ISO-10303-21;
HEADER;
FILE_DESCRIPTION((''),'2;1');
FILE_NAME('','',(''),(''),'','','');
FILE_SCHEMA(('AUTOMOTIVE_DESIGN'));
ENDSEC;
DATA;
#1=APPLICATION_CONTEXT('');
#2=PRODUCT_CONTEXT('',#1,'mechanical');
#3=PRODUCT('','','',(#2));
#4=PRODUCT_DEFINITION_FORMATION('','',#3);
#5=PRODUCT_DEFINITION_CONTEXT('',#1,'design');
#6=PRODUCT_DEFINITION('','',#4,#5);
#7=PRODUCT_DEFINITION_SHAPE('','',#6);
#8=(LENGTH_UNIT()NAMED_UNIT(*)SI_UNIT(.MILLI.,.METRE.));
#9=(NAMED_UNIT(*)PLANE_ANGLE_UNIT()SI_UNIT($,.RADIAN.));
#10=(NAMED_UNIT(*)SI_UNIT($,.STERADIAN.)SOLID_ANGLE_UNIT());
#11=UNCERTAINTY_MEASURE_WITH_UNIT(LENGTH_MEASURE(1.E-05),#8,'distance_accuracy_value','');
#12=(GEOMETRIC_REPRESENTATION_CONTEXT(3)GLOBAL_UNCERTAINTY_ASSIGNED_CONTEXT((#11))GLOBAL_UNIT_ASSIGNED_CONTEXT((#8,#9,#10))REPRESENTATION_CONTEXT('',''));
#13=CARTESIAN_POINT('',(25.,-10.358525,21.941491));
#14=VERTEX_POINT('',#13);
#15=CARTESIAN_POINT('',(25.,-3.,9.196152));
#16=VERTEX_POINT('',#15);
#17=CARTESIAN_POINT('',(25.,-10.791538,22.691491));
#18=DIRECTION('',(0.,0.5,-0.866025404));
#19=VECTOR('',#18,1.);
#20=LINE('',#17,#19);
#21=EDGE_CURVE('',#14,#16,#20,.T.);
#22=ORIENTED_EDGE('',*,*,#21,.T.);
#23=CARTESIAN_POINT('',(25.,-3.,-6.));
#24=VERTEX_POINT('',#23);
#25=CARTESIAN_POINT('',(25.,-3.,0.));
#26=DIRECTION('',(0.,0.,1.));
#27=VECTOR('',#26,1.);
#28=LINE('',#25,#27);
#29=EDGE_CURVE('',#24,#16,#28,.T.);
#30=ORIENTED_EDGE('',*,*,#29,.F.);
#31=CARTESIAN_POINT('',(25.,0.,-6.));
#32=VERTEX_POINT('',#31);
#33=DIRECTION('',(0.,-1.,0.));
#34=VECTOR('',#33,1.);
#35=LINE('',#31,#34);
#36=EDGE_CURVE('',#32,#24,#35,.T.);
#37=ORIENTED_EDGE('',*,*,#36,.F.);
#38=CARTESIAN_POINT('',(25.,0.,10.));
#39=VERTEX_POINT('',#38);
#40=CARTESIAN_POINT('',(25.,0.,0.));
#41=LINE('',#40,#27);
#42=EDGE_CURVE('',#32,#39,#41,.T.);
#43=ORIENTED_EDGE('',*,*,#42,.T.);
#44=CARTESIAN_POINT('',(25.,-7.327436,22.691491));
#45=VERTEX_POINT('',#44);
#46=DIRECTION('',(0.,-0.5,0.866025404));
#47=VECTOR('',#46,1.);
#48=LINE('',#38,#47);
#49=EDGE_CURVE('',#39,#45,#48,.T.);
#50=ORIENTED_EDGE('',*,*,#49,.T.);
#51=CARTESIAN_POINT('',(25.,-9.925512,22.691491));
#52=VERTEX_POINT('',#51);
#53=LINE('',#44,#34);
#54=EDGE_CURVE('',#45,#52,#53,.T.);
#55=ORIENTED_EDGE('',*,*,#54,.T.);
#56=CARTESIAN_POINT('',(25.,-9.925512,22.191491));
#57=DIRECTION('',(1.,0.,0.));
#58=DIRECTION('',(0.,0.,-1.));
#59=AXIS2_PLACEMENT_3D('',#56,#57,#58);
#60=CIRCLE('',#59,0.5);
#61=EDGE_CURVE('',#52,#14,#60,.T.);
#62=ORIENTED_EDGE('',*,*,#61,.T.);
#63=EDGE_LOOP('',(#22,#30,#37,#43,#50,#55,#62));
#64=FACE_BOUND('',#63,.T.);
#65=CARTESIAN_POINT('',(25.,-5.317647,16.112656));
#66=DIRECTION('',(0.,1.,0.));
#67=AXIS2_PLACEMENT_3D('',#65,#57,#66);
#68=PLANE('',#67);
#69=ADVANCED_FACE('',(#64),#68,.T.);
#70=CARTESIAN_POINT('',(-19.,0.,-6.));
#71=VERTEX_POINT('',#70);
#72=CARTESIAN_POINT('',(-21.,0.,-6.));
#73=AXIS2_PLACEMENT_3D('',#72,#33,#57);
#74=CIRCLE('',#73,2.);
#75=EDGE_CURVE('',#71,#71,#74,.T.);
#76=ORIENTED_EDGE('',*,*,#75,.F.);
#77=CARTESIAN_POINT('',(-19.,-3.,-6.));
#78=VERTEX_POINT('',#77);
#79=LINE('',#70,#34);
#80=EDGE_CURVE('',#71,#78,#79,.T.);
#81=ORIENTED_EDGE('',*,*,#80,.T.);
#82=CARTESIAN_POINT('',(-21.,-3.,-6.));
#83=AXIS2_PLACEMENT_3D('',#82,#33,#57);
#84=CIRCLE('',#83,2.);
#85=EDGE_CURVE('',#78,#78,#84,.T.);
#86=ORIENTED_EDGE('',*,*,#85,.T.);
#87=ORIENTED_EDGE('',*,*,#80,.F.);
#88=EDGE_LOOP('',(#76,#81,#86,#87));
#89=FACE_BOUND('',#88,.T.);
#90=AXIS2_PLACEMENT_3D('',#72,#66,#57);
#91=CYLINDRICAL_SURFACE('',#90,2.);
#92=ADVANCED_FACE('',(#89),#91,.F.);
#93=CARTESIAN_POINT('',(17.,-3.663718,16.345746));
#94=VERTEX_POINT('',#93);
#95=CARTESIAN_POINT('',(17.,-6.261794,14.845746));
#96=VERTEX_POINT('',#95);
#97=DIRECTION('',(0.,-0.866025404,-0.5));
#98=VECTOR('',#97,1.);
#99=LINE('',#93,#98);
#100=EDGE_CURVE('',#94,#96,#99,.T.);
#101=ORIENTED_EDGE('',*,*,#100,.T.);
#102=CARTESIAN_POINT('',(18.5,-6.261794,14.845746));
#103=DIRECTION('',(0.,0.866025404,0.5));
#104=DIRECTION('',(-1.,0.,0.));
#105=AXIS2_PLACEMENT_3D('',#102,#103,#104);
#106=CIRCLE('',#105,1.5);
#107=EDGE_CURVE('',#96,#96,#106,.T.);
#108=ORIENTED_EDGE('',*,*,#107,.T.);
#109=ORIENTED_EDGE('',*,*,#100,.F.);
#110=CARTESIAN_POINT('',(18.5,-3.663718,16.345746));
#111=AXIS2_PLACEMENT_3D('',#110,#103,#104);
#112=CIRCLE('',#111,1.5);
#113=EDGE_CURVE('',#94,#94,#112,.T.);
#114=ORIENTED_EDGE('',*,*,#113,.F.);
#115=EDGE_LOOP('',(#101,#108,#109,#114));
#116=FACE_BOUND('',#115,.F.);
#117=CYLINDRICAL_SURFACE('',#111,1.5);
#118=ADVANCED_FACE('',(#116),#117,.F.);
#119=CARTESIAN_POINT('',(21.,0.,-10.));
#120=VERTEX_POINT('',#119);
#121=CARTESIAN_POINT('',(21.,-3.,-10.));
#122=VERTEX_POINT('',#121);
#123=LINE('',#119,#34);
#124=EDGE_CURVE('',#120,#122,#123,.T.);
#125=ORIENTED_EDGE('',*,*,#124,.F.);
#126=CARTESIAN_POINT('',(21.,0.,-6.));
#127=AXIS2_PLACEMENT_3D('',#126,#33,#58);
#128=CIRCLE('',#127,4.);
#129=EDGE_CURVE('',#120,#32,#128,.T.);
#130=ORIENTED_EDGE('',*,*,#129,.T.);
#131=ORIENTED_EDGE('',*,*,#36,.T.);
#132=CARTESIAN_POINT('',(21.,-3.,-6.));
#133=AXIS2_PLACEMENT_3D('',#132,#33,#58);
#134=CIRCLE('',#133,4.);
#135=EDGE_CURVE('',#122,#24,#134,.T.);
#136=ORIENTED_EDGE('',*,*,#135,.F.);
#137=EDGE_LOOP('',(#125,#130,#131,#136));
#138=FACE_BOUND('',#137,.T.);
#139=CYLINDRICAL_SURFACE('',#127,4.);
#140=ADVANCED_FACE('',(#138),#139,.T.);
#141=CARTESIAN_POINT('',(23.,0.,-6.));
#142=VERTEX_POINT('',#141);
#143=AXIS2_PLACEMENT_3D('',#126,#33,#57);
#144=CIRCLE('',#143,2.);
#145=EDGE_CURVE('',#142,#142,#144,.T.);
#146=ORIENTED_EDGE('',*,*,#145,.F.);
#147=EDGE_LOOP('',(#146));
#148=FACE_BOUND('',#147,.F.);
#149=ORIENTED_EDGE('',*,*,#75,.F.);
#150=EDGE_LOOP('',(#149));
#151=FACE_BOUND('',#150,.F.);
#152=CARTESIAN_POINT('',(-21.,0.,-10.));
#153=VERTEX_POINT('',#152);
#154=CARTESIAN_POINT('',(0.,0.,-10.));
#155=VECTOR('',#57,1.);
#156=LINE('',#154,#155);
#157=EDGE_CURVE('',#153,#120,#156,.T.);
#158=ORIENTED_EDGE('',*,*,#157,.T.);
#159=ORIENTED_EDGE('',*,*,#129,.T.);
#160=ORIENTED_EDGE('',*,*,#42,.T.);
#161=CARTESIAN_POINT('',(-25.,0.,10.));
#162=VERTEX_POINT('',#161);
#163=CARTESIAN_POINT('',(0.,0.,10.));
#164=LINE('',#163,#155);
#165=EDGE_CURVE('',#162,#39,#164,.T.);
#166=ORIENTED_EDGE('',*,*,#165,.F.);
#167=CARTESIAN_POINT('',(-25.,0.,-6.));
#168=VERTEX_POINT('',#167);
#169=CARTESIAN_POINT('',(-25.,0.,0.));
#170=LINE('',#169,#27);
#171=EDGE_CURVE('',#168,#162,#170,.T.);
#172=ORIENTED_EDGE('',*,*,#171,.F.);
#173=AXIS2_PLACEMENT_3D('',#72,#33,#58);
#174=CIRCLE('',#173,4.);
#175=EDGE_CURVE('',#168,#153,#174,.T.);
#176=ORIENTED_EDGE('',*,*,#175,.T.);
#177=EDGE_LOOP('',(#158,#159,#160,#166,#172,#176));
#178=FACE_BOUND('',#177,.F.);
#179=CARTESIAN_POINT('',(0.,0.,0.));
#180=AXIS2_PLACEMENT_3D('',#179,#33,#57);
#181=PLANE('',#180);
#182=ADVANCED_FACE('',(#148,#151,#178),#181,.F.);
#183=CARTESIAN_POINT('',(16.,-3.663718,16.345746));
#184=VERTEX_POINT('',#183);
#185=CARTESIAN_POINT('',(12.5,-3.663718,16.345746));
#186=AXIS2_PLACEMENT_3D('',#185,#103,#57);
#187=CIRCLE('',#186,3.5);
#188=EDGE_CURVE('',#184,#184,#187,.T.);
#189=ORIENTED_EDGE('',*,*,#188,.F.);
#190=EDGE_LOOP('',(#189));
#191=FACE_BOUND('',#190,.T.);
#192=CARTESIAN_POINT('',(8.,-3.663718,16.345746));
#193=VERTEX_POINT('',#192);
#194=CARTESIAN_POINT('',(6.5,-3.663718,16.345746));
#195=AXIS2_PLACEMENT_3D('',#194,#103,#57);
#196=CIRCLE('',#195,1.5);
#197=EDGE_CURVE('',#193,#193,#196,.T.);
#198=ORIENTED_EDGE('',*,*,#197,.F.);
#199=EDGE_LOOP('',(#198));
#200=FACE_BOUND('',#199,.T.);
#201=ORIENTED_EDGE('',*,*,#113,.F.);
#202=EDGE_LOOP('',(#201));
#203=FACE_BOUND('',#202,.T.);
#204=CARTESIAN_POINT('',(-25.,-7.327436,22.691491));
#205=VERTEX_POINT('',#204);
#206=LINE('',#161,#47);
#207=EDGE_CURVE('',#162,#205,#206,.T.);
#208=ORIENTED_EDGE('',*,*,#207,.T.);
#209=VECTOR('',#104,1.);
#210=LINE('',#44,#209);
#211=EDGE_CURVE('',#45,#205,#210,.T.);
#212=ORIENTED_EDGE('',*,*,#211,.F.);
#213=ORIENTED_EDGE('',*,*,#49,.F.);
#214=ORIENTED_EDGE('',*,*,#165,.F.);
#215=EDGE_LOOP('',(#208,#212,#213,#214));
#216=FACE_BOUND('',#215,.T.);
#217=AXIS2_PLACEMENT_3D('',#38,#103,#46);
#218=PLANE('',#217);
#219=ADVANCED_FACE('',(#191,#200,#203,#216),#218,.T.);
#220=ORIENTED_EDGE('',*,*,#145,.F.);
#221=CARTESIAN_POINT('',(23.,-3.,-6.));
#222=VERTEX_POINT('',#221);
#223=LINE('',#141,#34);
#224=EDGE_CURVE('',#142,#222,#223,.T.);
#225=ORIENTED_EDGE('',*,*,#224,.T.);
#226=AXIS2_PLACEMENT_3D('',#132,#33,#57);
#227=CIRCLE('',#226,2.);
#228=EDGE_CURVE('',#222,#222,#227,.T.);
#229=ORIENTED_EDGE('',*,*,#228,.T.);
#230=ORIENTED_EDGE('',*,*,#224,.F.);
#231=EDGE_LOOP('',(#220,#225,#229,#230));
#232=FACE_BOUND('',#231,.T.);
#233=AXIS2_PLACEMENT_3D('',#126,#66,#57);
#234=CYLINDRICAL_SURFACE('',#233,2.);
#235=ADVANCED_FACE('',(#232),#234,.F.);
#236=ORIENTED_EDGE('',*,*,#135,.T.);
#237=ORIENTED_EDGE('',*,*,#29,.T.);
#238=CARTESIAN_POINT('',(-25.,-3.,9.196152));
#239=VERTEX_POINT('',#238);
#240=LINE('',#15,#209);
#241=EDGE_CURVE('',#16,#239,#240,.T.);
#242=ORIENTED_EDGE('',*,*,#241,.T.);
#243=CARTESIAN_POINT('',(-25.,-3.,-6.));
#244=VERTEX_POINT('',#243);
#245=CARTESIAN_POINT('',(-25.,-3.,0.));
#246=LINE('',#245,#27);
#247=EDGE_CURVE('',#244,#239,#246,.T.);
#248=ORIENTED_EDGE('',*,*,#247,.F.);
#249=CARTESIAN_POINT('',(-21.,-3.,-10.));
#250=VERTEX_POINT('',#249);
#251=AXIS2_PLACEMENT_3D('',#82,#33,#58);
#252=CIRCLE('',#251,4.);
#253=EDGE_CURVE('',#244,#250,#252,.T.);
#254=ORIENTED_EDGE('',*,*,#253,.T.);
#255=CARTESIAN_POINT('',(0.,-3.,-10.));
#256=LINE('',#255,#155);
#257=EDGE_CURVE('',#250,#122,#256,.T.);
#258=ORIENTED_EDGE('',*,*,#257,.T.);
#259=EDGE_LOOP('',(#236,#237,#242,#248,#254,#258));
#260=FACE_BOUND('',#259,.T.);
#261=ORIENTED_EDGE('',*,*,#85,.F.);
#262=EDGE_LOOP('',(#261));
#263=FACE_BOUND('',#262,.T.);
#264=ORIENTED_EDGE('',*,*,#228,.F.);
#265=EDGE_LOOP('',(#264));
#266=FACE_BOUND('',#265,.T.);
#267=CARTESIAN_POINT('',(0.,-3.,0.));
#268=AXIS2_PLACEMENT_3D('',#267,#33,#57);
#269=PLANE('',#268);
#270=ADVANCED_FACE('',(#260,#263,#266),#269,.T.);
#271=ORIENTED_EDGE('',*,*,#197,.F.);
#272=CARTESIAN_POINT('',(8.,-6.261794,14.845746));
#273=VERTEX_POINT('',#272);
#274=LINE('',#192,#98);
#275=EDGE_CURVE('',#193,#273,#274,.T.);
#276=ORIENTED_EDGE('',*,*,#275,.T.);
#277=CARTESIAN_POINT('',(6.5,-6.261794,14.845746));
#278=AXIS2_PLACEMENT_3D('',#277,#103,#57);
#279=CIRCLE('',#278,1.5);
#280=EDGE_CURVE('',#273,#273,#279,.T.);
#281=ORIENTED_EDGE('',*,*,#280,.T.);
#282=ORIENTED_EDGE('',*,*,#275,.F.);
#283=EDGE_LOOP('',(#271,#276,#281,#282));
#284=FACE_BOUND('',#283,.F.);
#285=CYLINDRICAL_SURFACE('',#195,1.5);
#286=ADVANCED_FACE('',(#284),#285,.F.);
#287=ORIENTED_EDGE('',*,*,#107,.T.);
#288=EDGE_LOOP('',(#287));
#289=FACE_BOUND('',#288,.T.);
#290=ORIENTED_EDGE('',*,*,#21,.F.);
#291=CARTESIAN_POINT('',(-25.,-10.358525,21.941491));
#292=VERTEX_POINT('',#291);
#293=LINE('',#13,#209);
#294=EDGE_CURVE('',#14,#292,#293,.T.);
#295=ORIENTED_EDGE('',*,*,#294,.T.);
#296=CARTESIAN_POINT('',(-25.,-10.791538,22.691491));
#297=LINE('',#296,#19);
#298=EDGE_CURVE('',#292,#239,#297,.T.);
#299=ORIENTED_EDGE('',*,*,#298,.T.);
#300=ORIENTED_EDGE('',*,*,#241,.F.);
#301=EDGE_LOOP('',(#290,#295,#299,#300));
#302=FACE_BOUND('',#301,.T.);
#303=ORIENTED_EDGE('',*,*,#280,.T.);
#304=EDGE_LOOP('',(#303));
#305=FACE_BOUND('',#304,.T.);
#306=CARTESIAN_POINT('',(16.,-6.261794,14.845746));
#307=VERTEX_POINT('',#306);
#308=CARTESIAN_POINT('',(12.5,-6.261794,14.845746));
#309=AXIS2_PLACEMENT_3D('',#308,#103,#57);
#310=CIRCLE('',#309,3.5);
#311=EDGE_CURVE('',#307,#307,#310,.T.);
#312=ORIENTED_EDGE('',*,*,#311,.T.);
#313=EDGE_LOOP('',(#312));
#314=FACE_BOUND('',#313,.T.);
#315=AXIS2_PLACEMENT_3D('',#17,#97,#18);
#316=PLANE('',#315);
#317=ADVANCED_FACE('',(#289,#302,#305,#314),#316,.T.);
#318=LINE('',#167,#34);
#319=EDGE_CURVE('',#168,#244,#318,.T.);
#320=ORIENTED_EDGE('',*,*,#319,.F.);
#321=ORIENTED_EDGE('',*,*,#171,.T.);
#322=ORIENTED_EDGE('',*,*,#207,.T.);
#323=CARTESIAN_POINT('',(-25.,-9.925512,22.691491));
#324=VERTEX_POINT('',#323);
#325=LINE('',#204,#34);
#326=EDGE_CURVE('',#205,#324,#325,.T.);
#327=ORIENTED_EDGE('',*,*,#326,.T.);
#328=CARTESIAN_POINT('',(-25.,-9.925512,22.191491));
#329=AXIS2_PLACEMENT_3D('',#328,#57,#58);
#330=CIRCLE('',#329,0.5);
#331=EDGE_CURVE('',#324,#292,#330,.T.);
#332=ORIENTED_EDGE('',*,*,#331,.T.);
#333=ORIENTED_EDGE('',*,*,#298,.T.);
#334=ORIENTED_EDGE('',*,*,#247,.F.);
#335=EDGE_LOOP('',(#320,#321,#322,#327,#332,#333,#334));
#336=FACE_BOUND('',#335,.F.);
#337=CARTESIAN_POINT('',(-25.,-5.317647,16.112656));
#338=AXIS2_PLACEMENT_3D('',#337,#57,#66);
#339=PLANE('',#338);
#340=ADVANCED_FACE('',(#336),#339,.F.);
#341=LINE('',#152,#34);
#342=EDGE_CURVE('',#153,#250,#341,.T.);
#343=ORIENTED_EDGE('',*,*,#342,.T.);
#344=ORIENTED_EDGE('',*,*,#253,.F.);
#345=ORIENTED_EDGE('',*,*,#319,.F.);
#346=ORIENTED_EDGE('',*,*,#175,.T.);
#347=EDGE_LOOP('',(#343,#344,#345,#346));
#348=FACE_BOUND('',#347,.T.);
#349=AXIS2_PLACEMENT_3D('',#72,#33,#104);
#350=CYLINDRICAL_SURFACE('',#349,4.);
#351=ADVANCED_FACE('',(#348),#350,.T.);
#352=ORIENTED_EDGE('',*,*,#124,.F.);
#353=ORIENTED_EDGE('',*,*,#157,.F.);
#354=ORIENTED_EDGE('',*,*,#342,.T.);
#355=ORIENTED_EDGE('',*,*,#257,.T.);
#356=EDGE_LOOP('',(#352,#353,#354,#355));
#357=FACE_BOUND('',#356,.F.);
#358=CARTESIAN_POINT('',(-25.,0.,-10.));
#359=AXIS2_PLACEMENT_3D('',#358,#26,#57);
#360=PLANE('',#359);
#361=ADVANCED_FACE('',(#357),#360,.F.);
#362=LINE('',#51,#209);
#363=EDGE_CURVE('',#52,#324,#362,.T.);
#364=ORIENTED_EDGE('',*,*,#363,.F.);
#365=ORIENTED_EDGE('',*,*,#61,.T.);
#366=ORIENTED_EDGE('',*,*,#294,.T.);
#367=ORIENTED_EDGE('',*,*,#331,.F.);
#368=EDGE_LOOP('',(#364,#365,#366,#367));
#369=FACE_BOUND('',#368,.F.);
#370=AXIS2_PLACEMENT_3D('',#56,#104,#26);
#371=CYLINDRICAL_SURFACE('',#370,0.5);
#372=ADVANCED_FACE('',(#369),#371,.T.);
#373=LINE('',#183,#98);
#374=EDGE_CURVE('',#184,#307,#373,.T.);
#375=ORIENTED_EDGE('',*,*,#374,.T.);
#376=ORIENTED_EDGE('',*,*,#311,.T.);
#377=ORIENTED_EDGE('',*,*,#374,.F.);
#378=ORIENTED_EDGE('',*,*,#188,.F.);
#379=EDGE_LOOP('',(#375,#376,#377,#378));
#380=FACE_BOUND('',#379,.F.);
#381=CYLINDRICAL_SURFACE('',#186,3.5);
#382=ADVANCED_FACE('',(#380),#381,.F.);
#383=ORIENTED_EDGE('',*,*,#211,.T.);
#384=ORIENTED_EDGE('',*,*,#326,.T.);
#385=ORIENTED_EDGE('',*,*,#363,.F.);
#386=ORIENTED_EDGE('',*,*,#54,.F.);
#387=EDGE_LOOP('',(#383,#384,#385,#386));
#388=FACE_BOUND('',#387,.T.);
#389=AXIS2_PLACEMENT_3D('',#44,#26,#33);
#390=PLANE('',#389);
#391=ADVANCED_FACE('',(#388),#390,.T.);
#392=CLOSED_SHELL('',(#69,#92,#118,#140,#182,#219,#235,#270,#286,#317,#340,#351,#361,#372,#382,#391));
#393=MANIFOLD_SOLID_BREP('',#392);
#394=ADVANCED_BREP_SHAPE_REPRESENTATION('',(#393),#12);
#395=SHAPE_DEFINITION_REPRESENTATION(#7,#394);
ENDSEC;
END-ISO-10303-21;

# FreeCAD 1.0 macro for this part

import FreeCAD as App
import Part
import Sketcher

V = App.Vector
Q = App.Units.Quantity


def edges_at(feature, points):
    """Names of the edges that pass closest to the given points."""
    edges = feature.Shape.Edges
    near = lambda p: min(range(len(edges)), key=lambda i: edges[i].distToShape(Part.Vertex(*p))[0])
    return sorted({f"Edge{near(p) + 1}" for p in points})

doc = App.newDocument("Part")
params = doc.addObject("Spreadsheet::Sheet", "Params")
for row, (alias, value) in enumerate([
    ("sketch1_diameter", "4 mm"),
    ("sketch1_width", "50 mm"),
    ("sketch1_height", "20 mm"),
    ("pad1_length", "3 mm"),
    ("fillet_radius", "4 mm"),
    ("sketch2_width", "3 mm"),
    ("pad2_length", "50 mm"),
    ("sketch3_diameter", "7 mm"),
    ("sketch3_diameter2", "3 mm"),
    ("pocket1_length", "25 mm"),
    ("fillet2_radius", "0.5 mm"),
], start=1):
    params.set(f"A{row}", alias)
    params.set(f"B{row}", "=" + value)
    params.setAlias(f"B{row}", alias)

body = doc.addObject("PartDesign::Body", "Body")

# Sketch on XZ plane
sketch1 = body.newObject("Sketcher::SketchObject", "Sketch")
sketch1.AttachmentSupport = (doc.getObject("XZ_Plane"), [""])
sketch1.MapMode = "FlatFace"
sketch1.addGeometry([
    Part.LineSegment(V(-25, 10, 0), V(-25, -10, 0)),  # 0
    Part.LineSegment(V(-25, -10, 0), V(25, -10, 0)),  # 1
    Part.LineSegment(V(25, -10, 0), V(25, 10, 0)),  # 2
    Part.LineSegment(V(25, 10, 0), V(-25, 10, 0)),  # 3
    Part.Circle(V(-21, -6, 0), V(0, 0, 1), 2),  # 4
    Part.Circle(V(21, -6, 0), V(0, 0, 1), 2),  # 5
], False)
sketch1.addConstraint([
    Sketcher.Constraint("Coincident", 0, 2, 1, 1),
    Sketcher.Constraint("Coincident", 1, 2, 2, 1),
    Sketcher.Constraint("Coincident", 2, 2, 3, 1),
    Sketcher.Constraint("Coincident", 3, 2, 0, 1),
    Sketcher.Constraint("Vertical", 0),
    Sketcher.Constraint("Horizontal", 1),
    Sketcher.Constraint("Vertical", 2),
    Sketcher.Constraint("Horizontal", 3),
    Sketcher.Constraint("Equal", 4, 5),
    Sketcher.Constraint("Symmetric", 0, 2, 2, 2, -1, 1),
    Sketcher.Constraint("Symmetric", 4, 3, 5, 3, -2),
    Sketcher.Constraint("Diameter", 4, Q("4 mm")),
    Sketcher.Constraint("DistanceX", 1, 1, 1, 2, Q("50 mm")),
    Sketcher.Constraint("DistanceY", 0, 2, 0, 1, Q("20 mm")),
    Sketcher.Constraint("DistanceX", 4, 3, -1, 1, Q("21 mm")),
    Sketcher.Constraint("DistanceY", 4, 3, -1, 1, Q("6 mm")),
])
sketch1.setExpression("Constraints[11]", "Params.sketch1_diameter")
sketch1.setExpression("Constraints[12]", "Params.sketch1_width")
sketch1.setExpression("Constraints[13]", "Params.sketch1_height")
pad1 = body.newObject("PartDesign::Pad", "Pad")
pad1.Profile = sketch1
pad1.setExpression("Length", "Params.pad1_length")
doc.recompute()

fillet = body.newObject("PartDesign::Fillet", "Fillet")
fillet.Base = (pad1, edges_at(pad1, [(-25, -1.5, -10), (25, -1.5, -10)]))
fillet.setExpression("Radius", "Params.fillet_radius")

# Sketch on YZ plane
sketch2 = body.newObject("Sketcher::SketchObject", "Sketch001")
sketch2.AttachmentSupport = (doc.getObject("YZ_Plane"), [""])
sketch2.MapMode = "FlatFace"
sketch2.AttachmentOffset = App.Placement(V(0, 0, 25), App.Rotation())
sketch2.addGeometry([
    Part.LineSegment(V(0, 10, 0), V(-7.3, 22.7, 0)),  # 0
    Part.LineSegment(V(-7.3, 22.7, 0), V(-10.8, 22.7, 0)),  # 1
    Part.LineSegment(V(-10.8, 22.7, 0), V(-3, 9.2, 0)),  # 2
    Part.LineSegment(V(-3, 9.2, 0), V(-3, 10, 0)),  # 3
    Part.LineSegment(V(-3, 10, 0), V(0, 10, 0)),  # 4
], False)
sketch2.addConstraint([
    Sketcher.Constraint("Coincident", 0, 2, 1, 1),
    Sketcher.Constraint("Coincident", 1, 2, 2, 1),
    Sketcher.Constraint("Coincident", 2, 2, 3, 1),
    Sketcher.Constraint("Coincident", 3, 2, 4, 1),
    Sketcher.Constraint("Coincident", 4, 2, 0, 1),
    Sketcher.Constraint("Horizontal", 1),
    Sketcher.Constraint("Vertical", 3),
    Sketcher.Constraint("Horizontal", 4),
    Sketcher.Constraint("PointOnObject", 4, 2, -2),
    Sketcher.Constraint("Parallel", 0, 2),
    Sketcher.Constraint("DistanceX", 4, 1, 4, 2, Q("3 mm")),
    Sketcher.Constraint("Angle", 0, Q("120 deg")),
    Sketcher.Constraint("DistanceY", -1, 1, 3, 2, Q("10 mm")),
    Sketcher.Constraint("DistanceX", 1, 2, 1, 1, Q("3.464102 mm")),
    Sketcher.Constraint("DistanceY", -1, 1, 0, 2, Q("22.691491 mm")),
])
sketch2.setExpression("Constraints[10]", "Params.sketch2_width")
pad2 = body.newObject("PartDesign::Pad", "Pad001")
pad2.Profile = sketch2
pad2.setExpression("Length", "Params.pad2_length")
pad2.Reversed = True

# Sketch on an angled plane
sketch3 = body.newObject("Sketcher::SketchObject", "Sketch002")
sketch3.Placement = App.Placement(V(0, 4.330127, 2.5), App.Rotation(V(-1, 0, 0), V(0, -0.5, 0.866025404), V(0, 0.866025404, 0.5), "ZXY"))
sketch3.addGeometry([
    Part.Circle(V(-12.5, 16, 0), V(0, 0, 1), 3.5),
    Part.Circle(V(-18.5, 16, 0), V(0, 0, 1), 1.5),
    Part.Circle(V(-6.5, 16, 0), V(0, 0, 1), 1.5),
], False)
sketch3.addConstraint([
    Sketcher.Constraint("Equal", 1, 2),
    Sketcher.Constraint("Horizontal", 0, 3, 1, 3),
    Sketcher.Constraint("Horizontal", 1, 3, 2, 3),
    Sketcher.Constraint("Diameter", 0, Q("7 mm")),
    Sketcher.Constraint("Diameter", 1, Q("3 mm")),
    Sketcher.Constraint("DistanceX", 1, 3, 0, 3, Q("6 mm")),
    Sketcher.Constraint("DistanceX", 0, 3, 2, 3, Q("6 mm")),
    Sketcher.Constraint("DistanceX", 0, 3, -1, 1, Q("12.5 mm")),
    Sketcher.Constraint("DistanceY", -1, 1, 0, 3, Q("15.98769 mm")),
])
sketch3.setExpression("Constraints[3]", "Params.sketch3_diameter")
sketch3.setExpression("Constraints[4]", "Params.sketch3_diameter2")
pocket1 = body.newObject("PartDesign::Pocket", "Pocket")
pocket1.Profile = sketch3
pocket1.setExpression("Length", "Params.pocket1_length")
doc.recompute()

fillet2 = body.newObject("PartDesign::Fillet", "Fillet001")
fillet2.Base = (pocket1, edges_at(pocket1, [(0, -10.792, 22.691)]))
fillet2.setExpression("Radius", "Params.fillet2_radius")

doc.recompute()
